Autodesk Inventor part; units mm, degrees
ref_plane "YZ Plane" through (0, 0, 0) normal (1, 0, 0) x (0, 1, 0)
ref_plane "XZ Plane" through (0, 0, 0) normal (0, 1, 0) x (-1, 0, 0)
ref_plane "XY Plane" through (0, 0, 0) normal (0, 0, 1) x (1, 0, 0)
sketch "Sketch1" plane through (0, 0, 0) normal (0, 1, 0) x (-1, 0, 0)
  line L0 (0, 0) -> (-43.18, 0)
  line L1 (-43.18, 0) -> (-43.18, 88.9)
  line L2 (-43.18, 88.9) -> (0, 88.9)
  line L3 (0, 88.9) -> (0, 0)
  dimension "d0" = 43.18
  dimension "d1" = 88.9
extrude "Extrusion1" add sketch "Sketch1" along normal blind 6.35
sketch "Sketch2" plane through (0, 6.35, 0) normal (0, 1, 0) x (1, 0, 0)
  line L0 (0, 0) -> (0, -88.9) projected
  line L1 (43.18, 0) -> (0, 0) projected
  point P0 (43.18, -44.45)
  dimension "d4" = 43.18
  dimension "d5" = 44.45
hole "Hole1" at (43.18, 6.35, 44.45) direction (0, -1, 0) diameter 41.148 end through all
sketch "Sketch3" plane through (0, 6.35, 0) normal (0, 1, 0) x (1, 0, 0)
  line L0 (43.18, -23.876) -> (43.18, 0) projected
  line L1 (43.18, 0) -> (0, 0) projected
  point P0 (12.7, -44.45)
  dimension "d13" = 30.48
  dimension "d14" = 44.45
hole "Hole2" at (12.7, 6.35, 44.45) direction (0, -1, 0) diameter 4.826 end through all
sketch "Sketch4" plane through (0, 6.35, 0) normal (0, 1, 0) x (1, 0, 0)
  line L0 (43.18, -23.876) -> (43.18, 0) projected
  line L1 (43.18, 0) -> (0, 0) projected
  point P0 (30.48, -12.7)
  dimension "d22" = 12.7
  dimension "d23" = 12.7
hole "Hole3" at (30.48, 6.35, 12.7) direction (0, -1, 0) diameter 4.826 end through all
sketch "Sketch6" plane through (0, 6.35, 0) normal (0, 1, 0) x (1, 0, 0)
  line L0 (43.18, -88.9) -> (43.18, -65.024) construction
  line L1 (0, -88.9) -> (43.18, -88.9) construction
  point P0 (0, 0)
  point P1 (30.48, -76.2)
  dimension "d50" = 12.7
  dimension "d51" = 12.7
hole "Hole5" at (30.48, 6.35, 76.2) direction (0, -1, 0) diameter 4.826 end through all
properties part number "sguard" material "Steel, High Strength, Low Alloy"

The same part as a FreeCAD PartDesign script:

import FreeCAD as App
import Part
import Sketcher
Q = App.Units.Quantity

doc = App.newDocument("Part")
params = doc.addObject("Spreadsheet::Sheet", "Params")
for row, (alias, value) in enumerate([
    ("sketch1_width", "1.7 in"),
    ("sketch1_height", "3.5 in"),
    ("pad1_length", "0.25 in"),
    ("sketch2_diameter", "1.62 in"),
    ("hole_diameter", "1.62 in"),
    ("sketch3_diameter", "0.19 in"),
    ("hole2_diameter", "0.19 in"),
    ("sketch4_diameter", "0.19 in"),
    ("hole3_diameter", "0.19 in"),
    ("sketch5_diameter", "0.19 in"),
    ("hole4_diameter", "0.19 in"),
], start=1):
    params.set(f"A{row}", alias)
    params.set(f"B{row}", "=" + value)
    params.setAlias(f"B{row}", alias)

body = doc.addObject("PartDesign::Body", "Body")

sketch1 = doc.addObject("Sketcher::SketchObject", "Sketch")
body.addObject(sketch1)
sketch1.AttachmentSupport = (doc.XZ_Plane, [""])
sketch1.MapMode = "FlatFace"
sketch1.addGeometry([
    Part.LineSegment(App.Vector(43.18, 0, 0), App.Vector(0, 0, 0)),
    Part.LineSegment(App.Vector(0, 0, 0), App.Vector(0, 88.9, 0)),
    Part.LineSegment(App.Vector(0, 88.9, 0), App.Vector(43.18, 88.9, 0)),
    Part.LineSegment(App.Vector(43.18, 88.9, 0), App.Vector(43.18, 0, 0)),
], False)
sketch1.addConstraint([
    Sketcher.Constraint("Coincident", 0, 2, 1, 1),
    Sketcher.Constraint("Coincident", 1, 2, 2, 1),
    Sketcher.Constraint("Coincident", 2, 2, 3, 1),
    Sketcher.Constraint("Coincident", 3, 2, 0, 1),
    Sketcher.Constraint("Horizontal", 0),
    Sketcher.Constraint("Vertical", 1),
    Sketcher.Constraint("Horizontal", 2),
    Sketcher.Constraint("Vertical", 3),
    Sketcher.Constraint("Coincident", 0, 2, -1, 1),
    Sketcher.Constraint("DistanceX", 0, 2, 0, 1, Q("1.7 in")),
    Sketcher.Constraint("DistanceY", 1, 1, 1, 2, Q("3.5 in")),
])
sketch1.setExpression("Constraints[9]", "Params.sketch1_width")
sketch1.setExpression("Constraints[10]", "Params.sketch1_height")
pad1 = doc.addObject("PartDesign::Pad", "Pad")
body.addObject(pad1)
pad1.Profile = sketch1
pad1.setExpression("Length", "Params.pad1_length")
pad1.Reversed = True

sketch2 = doc.addObject("Sketcher::SketchObject", "Sketch001")
body.addObject(sketch2)
sketch2.AttachmentSupport = (doc.XZ_Plane, [""])
sketch2.MapMode = "FlatFace"
sketch2.AttachmentOffset = App.Placement(App.Vector(0, 0, -0.25 * 25.4), App.Rotation())
sketch2.addGeometry(Part.Circle(App.Vector(43.18, 44.45, 0), App.Vector(0, 0, 1), 20.574), False)
sketch2.addConstraint([
    Sketcher.Constraint("Diameter", 0, Q("1.62 in")),
    Sketcher.Constraint("DistanceX", -1, 1, 0, 3, Q("1.7 in")),
    Sketcher.Constraint("DistanceY", -1, 1, 0, 3, Q("1.75 in")),
])
sketch2.setExpression("Constraints[0]", "Params.sketch2_diameter")
doc.recompute()
hole = doc.addObject("PartDesign::Hole", "Hole")
body.addObject(hole)
hole.Profile = sketch2
hole.ThreadType = "None"
hole.setExpression("Diameter", "Params.hole_diameter")
hole.DepthType = "ThroughAll"
hole.Reversed = True

sketch3 = doc.addObject("Sketcher::SketchObject", "Sketch002")
body.addObject(sketch3)
sketch3.AttachmentSupport = (doc.XZ_Plane, [""])
sketch3.MapMode = "FlatFace"
sketch3.AttachmentOffset = App.Placement(App.Vector(0, 0, -0.25 * 25.4), App.Rotation())
sketch3.addGeometry(Part.Circle(App.Vector(12.7, 44.45, 0), App.Vector(0, 0, 1), 2.413), False)
sketch3.addConstraint([
    Sketcher.Constraint("Diameter", 0, Q("0.19 in")),
    Sketcher.Constraint("DistanceX", -1, 1, 0, 3, Q("0.5 in")),
    Sketcher.Constraint("DistanceY", -1, 1, 0, 3, Q("1.75 in")),
])
sketch3.setExpression("Constraints[0]", "Params.sketch3_diameter")
doc.recompute()
hole2 = doc.addObject("PartDesign::Hole", "Hole001")
body.addObject(hole2)
hole2.Profile = sketch3
hole2.ThreadType = "None"
hole2.setExpression("Diameter", "Params.hole2_diameter")
hole2.DepthType = "ThroughAll"
hole2.Reversed = True

sketch4 = doc.addObject("Sketcher::SketchObject", "Sketch003")
body.addObject(sketch4)
sketch4.AttachmentSupport = (doc.XZ_Plane, [""])
sketch4.MapMode = "FlatFace"
sketch4.AttachmentOffset = App.Placement(App.Vector(0, 0, -0.25 * 25.4), App.Rotation())
sketch4.addGeometry(Part.Circle(App.Vector(30.48, 12.7, 0), App.Vector(0, 0, 1), 2.413), False)
sketch4.addConstraint([
    Sketcher.Constraint("Diameter", 0, Q("0.19 in")),
    Sketcher.Constraint("DistanceX", -1, 1, 0, 3, Q("1.2 in")),
    Sketcher.Constraint("DistanceY", -1, 1, 0, 3, Q("0.5 in")),
])
sketch4.setExpression("Constraints[0]", "Params.sketch4_diameter")
doc.recompute()
hole3 = doc.addObject("PartDesign::Hole", "Hole002")
body.addObject(hole3)
hole3.Profile = sketch4
hole3.ThreadType = "None"
hole3.setExpression("Diameter", "Params.hole3_diameter")
hole3.DepthType = "ThroughAll"
hole3.Reversed = True

sketch5 = doc.addObject("Sketcher::SketchObject", "Sketch004")
body.addObject(sketch5)
sketch5.AttachmentSupport = (doc.XZ_Plane, [""])
sketch5.MapMode = "FlatFace"
sketch5.AttachmentOffset = App.Placement(App.Vector(0, 0, -0.25 * 25.4), App.Rotation())
sketch5.addGeometry(Part.Circle(App.Vector(30.48, 76.2, 0), App.Vector(0, 0, 1), 2.413), False)
sketch5.addConstraint([
    Sketcher.Constraint("Diameter", 0, Q("0.19 in")),
    Sketcher.Constraint("DistanceY", -1, 1, 0, 3, Q("3 in")),
    Sketcher.Constraint("DistanceX", -1, 1, 0, 3, Q("1.2 in")),
])
sketch5.setExpression("Constraints[0]", "Params.sketch5_diameter")
doc.recompute()
hole4 = doc.addObject("PartDesign::Hole", "Hole003")
body.addObject(hole4)
hole4.Profile = sketch5
hole4.ThreadType = "None"
hole4.setExpression("Diameter", "Params.hole4_diameter")
hole4.DepthType = "ThroughAll"
hole4.Reversed = True

doc.recompute()
